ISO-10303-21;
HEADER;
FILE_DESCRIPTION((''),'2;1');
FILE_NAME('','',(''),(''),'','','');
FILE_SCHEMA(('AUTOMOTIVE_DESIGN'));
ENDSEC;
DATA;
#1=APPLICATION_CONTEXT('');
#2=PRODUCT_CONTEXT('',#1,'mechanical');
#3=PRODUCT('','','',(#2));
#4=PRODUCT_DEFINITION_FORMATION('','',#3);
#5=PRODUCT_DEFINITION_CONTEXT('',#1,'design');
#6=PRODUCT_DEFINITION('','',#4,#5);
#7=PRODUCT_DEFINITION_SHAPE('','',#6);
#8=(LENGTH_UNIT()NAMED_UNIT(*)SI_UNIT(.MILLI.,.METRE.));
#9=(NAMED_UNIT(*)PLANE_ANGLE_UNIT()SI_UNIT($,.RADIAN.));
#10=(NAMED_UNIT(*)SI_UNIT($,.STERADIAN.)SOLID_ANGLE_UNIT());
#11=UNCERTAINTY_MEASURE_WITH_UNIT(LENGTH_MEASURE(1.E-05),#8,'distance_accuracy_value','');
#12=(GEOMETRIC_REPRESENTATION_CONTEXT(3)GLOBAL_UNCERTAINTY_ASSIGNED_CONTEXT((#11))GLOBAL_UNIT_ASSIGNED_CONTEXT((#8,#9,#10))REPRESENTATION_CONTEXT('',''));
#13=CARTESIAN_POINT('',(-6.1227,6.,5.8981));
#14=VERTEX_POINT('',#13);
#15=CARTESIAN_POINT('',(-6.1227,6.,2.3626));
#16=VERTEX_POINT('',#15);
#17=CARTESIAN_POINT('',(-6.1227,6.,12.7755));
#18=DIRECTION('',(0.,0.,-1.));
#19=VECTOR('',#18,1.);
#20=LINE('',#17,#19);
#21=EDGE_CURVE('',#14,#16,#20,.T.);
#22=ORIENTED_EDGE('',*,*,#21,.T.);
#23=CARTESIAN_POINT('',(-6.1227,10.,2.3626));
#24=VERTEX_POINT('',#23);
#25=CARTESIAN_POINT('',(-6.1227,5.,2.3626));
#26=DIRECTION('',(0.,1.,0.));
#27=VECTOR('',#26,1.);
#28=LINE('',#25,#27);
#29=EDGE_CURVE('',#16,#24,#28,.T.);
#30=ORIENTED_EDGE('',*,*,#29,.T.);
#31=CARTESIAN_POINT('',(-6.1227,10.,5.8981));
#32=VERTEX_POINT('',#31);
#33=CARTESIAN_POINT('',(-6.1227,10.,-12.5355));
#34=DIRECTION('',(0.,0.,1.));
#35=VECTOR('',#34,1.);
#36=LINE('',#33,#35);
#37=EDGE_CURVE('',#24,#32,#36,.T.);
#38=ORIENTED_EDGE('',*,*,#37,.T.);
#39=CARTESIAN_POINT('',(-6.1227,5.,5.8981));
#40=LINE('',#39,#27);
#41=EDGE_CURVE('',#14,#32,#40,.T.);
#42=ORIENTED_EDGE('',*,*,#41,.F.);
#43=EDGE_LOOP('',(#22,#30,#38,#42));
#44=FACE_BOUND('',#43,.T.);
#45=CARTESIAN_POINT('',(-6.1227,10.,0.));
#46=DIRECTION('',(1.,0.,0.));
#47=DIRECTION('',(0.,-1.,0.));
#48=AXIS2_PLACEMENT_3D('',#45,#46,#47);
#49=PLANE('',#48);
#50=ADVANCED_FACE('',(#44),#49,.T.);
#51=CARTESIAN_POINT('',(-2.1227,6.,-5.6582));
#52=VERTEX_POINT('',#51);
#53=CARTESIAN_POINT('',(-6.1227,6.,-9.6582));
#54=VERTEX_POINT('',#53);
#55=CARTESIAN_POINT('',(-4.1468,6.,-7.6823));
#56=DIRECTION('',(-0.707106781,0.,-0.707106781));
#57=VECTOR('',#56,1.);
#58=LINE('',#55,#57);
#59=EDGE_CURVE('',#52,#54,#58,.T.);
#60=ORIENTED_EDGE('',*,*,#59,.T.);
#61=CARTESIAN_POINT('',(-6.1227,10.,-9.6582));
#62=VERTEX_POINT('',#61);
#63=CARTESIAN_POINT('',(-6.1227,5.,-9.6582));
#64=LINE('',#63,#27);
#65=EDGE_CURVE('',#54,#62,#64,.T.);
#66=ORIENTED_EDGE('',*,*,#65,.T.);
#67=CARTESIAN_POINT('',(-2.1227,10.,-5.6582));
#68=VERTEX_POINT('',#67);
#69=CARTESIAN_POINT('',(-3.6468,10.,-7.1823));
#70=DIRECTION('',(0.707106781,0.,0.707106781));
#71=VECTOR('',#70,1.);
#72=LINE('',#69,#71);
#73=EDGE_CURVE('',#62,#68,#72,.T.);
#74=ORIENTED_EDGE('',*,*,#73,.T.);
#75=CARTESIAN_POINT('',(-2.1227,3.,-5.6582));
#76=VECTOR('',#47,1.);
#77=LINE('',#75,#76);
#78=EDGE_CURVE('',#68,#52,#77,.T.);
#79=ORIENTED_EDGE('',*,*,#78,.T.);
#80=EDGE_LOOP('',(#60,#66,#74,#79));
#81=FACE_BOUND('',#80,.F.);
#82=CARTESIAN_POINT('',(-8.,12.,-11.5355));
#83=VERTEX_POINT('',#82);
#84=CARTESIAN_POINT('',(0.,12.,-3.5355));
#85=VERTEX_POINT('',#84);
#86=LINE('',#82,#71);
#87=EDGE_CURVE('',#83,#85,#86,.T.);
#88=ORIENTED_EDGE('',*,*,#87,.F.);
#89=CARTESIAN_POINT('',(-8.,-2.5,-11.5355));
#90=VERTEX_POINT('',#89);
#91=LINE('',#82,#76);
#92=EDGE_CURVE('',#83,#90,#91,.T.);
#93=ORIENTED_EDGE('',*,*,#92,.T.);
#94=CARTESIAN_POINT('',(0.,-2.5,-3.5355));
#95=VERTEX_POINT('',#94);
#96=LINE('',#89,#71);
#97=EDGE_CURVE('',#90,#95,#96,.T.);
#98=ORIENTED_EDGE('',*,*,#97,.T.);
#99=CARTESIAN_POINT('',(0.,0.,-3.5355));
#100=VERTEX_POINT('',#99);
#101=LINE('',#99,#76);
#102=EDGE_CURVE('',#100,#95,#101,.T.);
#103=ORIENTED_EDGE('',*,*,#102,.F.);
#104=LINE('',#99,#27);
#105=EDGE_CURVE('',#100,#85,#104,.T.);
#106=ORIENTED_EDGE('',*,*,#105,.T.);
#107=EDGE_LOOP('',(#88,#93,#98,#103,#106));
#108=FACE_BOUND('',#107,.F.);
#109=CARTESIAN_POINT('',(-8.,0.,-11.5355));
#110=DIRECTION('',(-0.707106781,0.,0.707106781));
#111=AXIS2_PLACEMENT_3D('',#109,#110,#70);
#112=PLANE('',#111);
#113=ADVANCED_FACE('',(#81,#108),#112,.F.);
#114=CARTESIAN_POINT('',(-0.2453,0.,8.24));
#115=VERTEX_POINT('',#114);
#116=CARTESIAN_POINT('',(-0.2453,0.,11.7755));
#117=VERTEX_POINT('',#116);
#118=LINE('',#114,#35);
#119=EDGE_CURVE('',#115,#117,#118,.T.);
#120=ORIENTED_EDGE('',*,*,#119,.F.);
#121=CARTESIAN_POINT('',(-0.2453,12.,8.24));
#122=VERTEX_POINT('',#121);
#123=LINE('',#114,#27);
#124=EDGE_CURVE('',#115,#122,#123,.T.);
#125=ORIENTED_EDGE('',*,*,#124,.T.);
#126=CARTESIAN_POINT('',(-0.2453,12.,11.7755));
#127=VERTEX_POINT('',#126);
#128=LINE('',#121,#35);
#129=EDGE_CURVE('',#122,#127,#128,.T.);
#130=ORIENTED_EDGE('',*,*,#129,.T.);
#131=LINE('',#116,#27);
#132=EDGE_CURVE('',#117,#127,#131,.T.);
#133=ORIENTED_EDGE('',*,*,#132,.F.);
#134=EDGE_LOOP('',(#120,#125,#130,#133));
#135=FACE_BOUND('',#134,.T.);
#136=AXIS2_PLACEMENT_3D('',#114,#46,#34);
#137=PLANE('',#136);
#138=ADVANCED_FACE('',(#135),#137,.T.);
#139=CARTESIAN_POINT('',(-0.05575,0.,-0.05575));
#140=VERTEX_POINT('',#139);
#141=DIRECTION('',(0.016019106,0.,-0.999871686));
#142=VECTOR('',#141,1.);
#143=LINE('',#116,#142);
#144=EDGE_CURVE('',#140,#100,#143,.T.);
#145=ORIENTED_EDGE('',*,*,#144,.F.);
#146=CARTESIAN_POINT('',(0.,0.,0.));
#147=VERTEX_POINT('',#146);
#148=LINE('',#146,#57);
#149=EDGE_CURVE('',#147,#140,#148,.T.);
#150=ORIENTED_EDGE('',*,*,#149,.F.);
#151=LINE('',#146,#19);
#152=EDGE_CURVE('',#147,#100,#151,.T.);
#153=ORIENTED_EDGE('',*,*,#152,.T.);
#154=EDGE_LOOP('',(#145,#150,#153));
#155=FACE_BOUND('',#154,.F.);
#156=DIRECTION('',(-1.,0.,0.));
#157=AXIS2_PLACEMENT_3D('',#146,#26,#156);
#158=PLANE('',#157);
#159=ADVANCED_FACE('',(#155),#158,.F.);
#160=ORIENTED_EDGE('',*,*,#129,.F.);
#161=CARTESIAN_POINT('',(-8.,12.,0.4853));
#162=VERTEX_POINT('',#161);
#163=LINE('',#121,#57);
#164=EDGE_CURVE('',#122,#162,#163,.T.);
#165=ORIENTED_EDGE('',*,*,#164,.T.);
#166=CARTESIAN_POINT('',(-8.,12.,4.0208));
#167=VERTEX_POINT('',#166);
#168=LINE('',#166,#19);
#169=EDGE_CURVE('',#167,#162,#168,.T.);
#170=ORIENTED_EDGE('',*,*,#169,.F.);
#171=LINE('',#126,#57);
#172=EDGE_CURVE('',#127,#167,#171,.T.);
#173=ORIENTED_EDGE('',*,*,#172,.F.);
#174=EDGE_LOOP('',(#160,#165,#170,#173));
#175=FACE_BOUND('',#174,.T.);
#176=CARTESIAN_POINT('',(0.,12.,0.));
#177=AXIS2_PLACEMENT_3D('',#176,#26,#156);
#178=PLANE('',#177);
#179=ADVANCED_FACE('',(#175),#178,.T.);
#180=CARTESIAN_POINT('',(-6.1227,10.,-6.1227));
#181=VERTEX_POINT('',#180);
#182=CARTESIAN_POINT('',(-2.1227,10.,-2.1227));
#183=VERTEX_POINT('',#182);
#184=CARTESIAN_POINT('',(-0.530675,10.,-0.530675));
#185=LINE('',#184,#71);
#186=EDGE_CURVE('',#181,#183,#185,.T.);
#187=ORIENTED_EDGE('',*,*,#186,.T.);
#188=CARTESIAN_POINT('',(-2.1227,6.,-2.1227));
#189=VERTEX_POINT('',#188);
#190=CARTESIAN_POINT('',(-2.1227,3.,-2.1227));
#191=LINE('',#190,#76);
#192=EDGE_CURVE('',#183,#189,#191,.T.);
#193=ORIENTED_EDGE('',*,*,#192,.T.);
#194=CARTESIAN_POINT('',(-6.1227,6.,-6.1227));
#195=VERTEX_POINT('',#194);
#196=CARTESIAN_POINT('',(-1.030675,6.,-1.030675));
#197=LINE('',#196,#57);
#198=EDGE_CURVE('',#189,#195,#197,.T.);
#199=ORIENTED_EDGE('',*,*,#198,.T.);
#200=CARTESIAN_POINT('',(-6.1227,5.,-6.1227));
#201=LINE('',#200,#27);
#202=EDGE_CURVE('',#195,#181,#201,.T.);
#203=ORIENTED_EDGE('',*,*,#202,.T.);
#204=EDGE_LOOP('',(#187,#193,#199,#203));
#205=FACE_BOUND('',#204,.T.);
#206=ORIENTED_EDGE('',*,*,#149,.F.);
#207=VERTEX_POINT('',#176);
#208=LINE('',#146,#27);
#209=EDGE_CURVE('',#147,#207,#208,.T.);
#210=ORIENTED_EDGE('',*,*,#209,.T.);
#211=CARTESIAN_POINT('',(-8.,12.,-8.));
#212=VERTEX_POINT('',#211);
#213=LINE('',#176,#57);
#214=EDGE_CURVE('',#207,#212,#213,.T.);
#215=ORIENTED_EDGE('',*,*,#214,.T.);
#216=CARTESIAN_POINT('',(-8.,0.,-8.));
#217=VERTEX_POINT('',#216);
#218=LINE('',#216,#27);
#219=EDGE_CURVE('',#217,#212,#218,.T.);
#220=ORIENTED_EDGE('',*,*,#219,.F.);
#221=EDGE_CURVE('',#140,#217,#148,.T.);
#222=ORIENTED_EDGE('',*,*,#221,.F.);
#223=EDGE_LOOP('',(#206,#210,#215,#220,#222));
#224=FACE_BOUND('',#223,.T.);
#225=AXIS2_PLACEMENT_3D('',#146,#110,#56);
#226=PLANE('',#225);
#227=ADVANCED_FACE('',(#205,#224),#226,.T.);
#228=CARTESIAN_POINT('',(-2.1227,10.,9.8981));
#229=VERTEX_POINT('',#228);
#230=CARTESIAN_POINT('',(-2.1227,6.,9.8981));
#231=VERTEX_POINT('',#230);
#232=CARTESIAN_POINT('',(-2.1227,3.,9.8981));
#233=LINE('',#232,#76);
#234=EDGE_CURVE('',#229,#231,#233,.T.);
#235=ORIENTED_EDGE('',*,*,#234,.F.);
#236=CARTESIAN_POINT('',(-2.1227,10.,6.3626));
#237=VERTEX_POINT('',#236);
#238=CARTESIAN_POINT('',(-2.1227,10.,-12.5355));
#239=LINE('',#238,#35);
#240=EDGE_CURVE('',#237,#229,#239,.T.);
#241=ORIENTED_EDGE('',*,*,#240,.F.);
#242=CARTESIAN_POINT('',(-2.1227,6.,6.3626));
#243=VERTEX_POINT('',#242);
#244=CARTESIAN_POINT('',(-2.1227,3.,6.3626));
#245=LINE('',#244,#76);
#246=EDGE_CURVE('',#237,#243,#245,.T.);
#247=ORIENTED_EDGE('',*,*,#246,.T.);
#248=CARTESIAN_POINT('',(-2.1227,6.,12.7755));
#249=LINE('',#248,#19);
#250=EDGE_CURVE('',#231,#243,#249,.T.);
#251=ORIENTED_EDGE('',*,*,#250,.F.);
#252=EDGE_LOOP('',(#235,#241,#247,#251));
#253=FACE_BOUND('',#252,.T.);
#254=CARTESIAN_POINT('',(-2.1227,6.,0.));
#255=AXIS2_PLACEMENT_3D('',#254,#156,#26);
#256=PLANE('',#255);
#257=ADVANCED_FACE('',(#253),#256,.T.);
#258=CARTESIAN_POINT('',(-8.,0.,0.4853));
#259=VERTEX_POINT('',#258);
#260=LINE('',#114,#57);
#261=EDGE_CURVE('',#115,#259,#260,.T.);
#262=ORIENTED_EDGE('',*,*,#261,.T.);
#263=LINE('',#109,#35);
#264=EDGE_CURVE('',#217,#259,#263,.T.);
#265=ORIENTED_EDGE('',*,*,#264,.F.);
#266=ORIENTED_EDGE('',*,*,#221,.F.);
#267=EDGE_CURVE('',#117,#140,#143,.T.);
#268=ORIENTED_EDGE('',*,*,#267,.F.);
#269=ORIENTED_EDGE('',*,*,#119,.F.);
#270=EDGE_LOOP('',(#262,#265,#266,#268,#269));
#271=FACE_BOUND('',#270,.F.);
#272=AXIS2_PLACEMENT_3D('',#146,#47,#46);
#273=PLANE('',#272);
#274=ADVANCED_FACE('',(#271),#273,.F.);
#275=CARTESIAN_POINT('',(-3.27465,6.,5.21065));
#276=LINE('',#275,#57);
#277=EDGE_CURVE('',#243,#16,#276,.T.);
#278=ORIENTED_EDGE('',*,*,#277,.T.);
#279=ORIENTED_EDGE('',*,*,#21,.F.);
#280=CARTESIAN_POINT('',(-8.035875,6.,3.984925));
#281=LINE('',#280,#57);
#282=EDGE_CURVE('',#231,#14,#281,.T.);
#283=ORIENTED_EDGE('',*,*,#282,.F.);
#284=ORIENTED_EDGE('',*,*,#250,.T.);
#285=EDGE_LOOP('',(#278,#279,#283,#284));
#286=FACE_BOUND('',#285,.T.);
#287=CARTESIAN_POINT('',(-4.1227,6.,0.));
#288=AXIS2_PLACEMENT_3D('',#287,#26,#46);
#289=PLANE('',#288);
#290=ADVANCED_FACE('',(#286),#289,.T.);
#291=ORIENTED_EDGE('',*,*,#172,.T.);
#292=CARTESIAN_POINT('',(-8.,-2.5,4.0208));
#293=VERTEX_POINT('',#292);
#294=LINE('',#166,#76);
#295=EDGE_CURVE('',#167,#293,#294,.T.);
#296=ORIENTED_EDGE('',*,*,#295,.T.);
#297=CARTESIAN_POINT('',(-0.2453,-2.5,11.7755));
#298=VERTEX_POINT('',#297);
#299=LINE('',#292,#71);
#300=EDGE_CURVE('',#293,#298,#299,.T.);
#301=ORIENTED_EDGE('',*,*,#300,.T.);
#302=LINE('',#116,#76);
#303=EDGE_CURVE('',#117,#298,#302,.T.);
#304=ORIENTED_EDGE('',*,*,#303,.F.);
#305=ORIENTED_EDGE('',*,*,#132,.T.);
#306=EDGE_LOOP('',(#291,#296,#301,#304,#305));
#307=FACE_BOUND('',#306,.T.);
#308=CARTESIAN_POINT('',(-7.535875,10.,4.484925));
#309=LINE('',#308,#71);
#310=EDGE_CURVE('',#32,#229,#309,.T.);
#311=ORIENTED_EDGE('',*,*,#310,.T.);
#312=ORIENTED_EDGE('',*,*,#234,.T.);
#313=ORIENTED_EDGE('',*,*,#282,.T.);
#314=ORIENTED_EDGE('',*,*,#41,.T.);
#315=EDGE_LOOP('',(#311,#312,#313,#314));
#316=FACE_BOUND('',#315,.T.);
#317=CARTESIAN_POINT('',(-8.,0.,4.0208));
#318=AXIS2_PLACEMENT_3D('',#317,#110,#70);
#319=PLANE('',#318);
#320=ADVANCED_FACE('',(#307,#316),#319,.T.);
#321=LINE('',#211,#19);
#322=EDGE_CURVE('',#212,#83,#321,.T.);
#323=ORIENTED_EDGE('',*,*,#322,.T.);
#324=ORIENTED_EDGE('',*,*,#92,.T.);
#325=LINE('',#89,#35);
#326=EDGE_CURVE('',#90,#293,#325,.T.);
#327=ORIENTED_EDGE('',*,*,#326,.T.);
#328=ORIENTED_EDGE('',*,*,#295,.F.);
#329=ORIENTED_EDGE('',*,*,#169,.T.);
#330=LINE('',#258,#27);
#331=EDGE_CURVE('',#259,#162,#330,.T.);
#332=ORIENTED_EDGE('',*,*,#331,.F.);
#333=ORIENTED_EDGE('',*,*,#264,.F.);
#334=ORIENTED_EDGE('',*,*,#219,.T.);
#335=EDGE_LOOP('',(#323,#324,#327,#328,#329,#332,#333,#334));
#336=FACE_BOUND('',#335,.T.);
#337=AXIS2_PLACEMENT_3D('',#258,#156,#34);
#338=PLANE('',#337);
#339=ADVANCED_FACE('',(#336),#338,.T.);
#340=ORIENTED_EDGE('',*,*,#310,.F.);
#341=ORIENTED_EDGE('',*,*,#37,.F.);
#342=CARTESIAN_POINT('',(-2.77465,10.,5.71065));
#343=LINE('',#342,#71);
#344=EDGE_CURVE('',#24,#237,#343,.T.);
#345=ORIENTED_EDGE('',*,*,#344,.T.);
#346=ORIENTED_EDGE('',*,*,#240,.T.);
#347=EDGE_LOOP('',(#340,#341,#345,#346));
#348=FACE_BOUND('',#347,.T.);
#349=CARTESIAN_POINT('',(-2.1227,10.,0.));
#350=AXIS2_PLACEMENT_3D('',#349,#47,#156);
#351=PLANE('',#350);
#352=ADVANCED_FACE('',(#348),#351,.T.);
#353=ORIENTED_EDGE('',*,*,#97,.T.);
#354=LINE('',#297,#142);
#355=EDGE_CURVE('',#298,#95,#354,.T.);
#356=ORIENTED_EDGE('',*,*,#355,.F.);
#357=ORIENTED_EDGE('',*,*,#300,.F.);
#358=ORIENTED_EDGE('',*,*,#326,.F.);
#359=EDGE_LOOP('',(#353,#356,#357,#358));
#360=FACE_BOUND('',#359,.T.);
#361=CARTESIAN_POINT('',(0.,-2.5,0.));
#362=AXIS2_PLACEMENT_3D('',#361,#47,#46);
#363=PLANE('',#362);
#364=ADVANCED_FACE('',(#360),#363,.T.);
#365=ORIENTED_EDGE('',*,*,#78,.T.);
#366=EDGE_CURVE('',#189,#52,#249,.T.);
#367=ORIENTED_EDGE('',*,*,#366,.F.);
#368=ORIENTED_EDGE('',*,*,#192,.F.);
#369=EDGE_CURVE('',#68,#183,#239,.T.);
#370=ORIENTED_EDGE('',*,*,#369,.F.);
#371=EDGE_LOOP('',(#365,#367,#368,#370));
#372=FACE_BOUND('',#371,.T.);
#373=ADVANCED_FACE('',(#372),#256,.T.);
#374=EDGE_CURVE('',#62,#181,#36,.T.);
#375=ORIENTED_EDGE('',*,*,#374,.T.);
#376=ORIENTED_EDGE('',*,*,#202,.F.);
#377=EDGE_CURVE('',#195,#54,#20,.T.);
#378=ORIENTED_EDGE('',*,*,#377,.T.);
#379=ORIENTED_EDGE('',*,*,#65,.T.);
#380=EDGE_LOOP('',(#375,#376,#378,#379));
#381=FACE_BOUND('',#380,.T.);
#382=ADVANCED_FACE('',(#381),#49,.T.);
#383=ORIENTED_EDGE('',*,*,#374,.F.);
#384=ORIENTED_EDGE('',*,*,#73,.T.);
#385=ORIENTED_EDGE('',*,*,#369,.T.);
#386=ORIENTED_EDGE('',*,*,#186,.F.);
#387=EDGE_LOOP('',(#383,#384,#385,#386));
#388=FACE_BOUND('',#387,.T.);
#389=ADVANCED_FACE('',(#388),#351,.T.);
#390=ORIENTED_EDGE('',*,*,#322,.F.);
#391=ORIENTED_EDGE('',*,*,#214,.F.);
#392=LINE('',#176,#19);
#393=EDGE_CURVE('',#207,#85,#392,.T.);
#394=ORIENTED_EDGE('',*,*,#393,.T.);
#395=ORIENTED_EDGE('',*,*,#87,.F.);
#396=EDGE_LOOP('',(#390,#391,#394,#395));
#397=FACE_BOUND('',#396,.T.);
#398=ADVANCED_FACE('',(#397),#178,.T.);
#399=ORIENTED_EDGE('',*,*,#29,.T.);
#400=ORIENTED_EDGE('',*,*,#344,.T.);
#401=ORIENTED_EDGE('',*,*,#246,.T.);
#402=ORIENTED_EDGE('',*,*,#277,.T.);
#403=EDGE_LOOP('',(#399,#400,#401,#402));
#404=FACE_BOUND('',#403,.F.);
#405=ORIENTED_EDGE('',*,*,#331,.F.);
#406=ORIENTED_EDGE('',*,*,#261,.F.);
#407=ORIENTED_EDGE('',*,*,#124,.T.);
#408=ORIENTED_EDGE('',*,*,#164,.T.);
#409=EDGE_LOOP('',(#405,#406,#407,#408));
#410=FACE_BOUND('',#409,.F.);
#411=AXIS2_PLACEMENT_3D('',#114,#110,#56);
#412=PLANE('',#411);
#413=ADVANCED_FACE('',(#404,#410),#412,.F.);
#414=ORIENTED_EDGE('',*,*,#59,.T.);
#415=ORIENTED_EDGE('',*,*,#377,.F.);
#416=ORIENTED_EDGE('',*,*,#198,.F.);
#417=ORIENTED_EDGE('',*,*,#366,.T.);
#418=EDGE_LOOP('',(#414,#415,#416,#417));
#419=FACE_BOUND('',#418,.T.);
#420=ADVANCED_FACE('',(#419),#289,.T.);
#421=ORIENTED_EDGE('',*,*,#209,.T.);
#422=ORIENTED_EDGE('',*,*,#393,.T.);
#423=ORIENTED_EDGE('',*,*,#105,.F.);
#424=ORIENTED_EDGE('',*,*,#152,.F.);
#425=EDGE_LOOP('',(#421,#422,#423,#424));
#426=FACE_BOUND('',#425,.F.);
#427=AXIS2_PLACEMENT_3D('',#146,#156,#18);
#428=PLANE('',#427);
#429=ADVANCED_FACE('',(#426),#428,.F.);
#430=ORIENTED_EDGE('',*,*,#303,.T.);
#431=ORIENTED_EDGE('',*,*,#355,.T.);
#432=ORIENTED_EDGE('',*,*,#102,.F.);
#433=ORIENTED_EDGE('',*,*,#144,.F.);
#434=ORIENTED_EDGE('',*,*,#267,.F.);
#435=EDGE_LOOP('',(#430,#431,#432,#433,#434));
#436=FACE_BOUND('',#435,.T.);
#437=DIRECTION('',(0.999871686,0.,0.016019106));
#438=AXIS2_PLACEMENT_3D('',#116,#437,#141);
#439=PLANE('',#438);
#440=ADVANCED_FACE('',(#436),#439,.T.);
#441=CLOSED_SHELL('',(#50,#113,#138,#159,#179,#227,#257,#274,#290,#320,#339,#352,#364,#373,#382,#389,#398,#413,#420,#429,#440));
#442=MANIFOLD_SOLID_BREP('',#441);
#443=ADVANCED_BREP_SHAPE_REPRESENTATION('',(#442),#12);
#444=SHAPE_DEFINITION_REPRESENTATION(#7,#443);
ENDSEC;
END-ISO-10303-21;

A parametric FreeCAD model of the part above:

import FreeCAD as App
import Part
import Sketcher
Q = App.Units.Quantity

doc = App.newDocument("Part")
body = doc.addObject("PartDesign::Body", "Body")
body.AllowCompound = True

# Sketch on XZ plane
sketch1 = body.newObject("Sketcher::SketchObject", "Sketch")
sketch1.AttachmentSupport = (doc.getObject("XZ_Plane"), [""])
sketch1.MapMode = "FlatFace"
sketch1.addGeometry(Part.LineSegment(App.Vector(-8, -8, 0), App.Vector(0, 0, 0)), False)
sketch1.addGeometry(Part.LineSegment(App.Vector(0, 0, 0), App.Vector(0, -3.5, 0)), False)
sketch1.addGeometry(Part.LineSegment(App.Vector(0, -3.5, 0), App.Vector(-8, -11.5, 0)), False)
sketch1.addGeometry(Part.LineSegment(App.Vector(-8, -11.5, 0), App.Vector(-8, -8, 0)), False)
sketch1.addGeometry(Part.LineSegment(App.Vector(-8, 4, 0), App.Vector(-0.2, 11.8, 0)), False)
sketch1.addGeometry(Part.LineSegment(App.Vector(-0.2, 11.8, 0), App.Vector(-0.2, 8.2, 0)), False)
sketch1.addGeometry(Part.LineSegment(App.Vector(-0.2, 8.2, 0), App.Vector(-8, 0.5, 0)), False)
sketch1.addGeometry(Part.LineSegment(App.Vector(-8, 0.5, 0), App.Vector(-8, 4, 0)), False)
sketch1.addConstraint(Sketcher.Constraint("Coincident", 0, 2, 1, 1))
sketch1.addConstraint(Sketcher.Constraint("Coincident", 1, 2, 2, 1))
sketch1.addConstraint(Sketcher.Constraint("Coincident", 2, 2, 3, 1))
sketch1.addConstraint(Sketcher.Constraint("Coincident", 3, 2, 0, 1))
sketch1.addConstraint(Sketcher.Constraint("Coincident", 4, 2, 5, 1))
sketch1.addConstraint(Sketcher.Constraint("Coincident", 5, 2, 6, 1))
sketch1.addConstraint(Sketcher.Constraint("Coincident", 6, 2, 7, 1))
sketch1.addConstraint(Sketcher.Constraint("Coincident", 7, 2, 4, 1))
sketch1.addConstraint(Sketcher.Constraint("Vertical", 1))
sketch1.addConstraint(Sketcher.Constraint("Vertical", 3))
sketch1.addConstraint(Sketcher.Constraint("Vertical", 5))
sketch1.addConstraint(Sketcher.Constraint("Vertical", 7))
sketch1.addConstraint(Sketcher.Constraint("Coincident", 0, 2, -1, 1))
sketch1.addConstraint(Sketcher.Constraint("Parallel", 0, 2))
sketch1.addConstraint(Sketcher.Constraint("Parallel", 2, 4))
sketch1.addConstraint(Sketcher.Constraint("Parallel", 4, 6))
sketch1.addConstraint(Sketcher.Constraint("Vertical", 3, 2, 6, 2))
sketch1.addConstraint(Sketcher.Constraint("Equal", 3, 5))
sketch1.addConstraint(Sketcher.Constraint("Angle", 0, Q("45 deg")))
sketch1.addConstraint(Sketcher.Constraint("DistanceX", 2, 2, -1, 1, Q("8 mm")))
sketch1.addConstraint(Sketcher.Constraint("DistanceY", -1, 1, 5, 2, Q("8.24 mm")))
sketch1.addConstraint(Sketcher.Constraint("DistanceY", 1, 2, 1, 1, Q("3.5355 mm")))
sketch1.addConstraint(Sketcher.Constraint("Distance", 4, Q("10.9668 mm")))
pad1 = body.newObject("PartDesign::Pad", "Pad")
pad1.Profile = sketch1
pad1.Length = 12
pad1.Reversed = True

# Sketch on XZ plane
sketch2 = body.newObject("Sketcher::SketchObject", "Sketch001")
sketch2.AttachmentSupport = (doc.getObject("XZ_Plane"), [""])
sketch2.MapMode = "FlatFace"
sketch2.addGeometry(Part.LineSegment(App.Vector(0, 12, 0), App.Vector(-8, 4, 0)), False)
sketch2.addGeometry(Part.LineSegment(App.Vector(-8, 4, 0), App.Vector(-8, -12, 0)), False)
sketch2.addGeometry(Part.LineSegment(App.Vector(-8, -12, 0), App.Vector(0, -4, 0)), False)
sketch2.addGeometry(Part.LineSegment(App.Vector(0, -4, 0), App.Vector(0, 12, 0)), False)
sketch2.addConstraint(Sketcher.Constraint("Coincident", 0, 2, 1, 1))
sketch2.addConstraint(Sketcher.Constraint("Coincident", 1, 2, 2, 1))
sketch2.addConstraint(Sketcher.Constraint("Coincident", 2, 2, 3, 1))
sketch2.addConstraint(Sketcher.Constraint("Coincident", 3, 2, 0, 1))
sketch2.addConstraint(Sketcher.Constraint("Vertical", 1))
sketch2.addConstraint(Sketcher.Constraint("PointOnObject", 2, 2, -2))
sketch2.addConstraint(Sketcher.Constraint("Parallel", 0, 2))
sketch2.addConstraint(Sketcher.Constraint("Angle", 0, Q("-135 deg")))
sketch2.addConstraint(Sketcher.Constraint("DistanceX", 0, 2, -1, 1, Q("8 mm")))
sketch2.addConstraint(Sketcher.Constraint("Distance", 3, Q("15.313 mm")))
sketch2.addConstraint(Sketcher.Constraint("DistanceY", 1, 2, 1, 1, Q("15.5563 mm")))
sketch2.addConstraint(Sketcher.Constraint("DistanceY", -1, 1, 0, 2, Q("4.0208 mm")))
pad2 = body.newObject("PartDesign::Pad", "Pad001")
pad2.Profile = sketch2
pad2.Length = 2.5

# Sketch on XY plane
sketch3 = body.newObject("Sketcher::SketchObject", "Sketch002")
sketch3.AttachmentSupport = (doc.getObject("XY_Plane"), [""])
sketch3.MapMode = "FlatFace"
sketch3.addGeometry(Part.LineSegment(App.Vector(-2.1, 6, 0), App.Vector(-2.1, 10, 0)), False)
sketch3.addGeometry(Part.LineSegment(App.Vector(-2.1, 10, 0), App.Vector(-6.1, 10, 0)), False)
sketch3.addGeometry(Part.LineSegment(App.Vector(-6.1, 10, 0), App.Vector(-6.1, 6, 0)), False)
sketch3.addGeometry(Part.LineSegment(App.Vector(-6.1, 6, 0), App.Vector(-2.1, 6, 0)), False)
sketch3.addConstraint(Sketcher.Constraint("Coincident", 0, 2, 1, 1))
sketch3.addConstraint(Sketcher.Constraint("Coincident", 1, 2, 2, 1))
sketch3.addConstraint(Sketcher.Constraint("Coincident", 2, 2, 3, 1))
sketch3.addConstraint(Sketcher.Constraint("Coincident", 3, 2, 0, 1))
sketch3.addConstraint(Sketcher.Constraint("Vertical", 0))
sketch3.addConstraint(Sketcher.Constraint("Horizontal", 1))
sketch3.addConstraint(Sketcher.Constraint("Vertical", 2))
sketch3.addConstraint(Sketcher.Constraint("Horizontal", 3))
sketch3.addConstraint(Sketcher.Constraint("Equal", 3, 0))
sketch3.addConstraint(Sketcher.Constraint("DistanceX", 1, 2, 1, 1, Q("4 mm")))
sketch3.addConstraint(Sketcher.Constraint("DistanceY", -1, 1, 2, 2, Q("6 mm")))
sketch3.addConstraint(Sketcher.Constraint("DistanceX", 0, 2, -1, 1, Q("2.1227 mm")))
pocket1 = body.newObject("PartDesign::Pocket", "Pocket")
pocket1.Profile = sketch3
pocket1.Type = "ThroughAll"
pocket1.Midplane = True

doc.recompute()
